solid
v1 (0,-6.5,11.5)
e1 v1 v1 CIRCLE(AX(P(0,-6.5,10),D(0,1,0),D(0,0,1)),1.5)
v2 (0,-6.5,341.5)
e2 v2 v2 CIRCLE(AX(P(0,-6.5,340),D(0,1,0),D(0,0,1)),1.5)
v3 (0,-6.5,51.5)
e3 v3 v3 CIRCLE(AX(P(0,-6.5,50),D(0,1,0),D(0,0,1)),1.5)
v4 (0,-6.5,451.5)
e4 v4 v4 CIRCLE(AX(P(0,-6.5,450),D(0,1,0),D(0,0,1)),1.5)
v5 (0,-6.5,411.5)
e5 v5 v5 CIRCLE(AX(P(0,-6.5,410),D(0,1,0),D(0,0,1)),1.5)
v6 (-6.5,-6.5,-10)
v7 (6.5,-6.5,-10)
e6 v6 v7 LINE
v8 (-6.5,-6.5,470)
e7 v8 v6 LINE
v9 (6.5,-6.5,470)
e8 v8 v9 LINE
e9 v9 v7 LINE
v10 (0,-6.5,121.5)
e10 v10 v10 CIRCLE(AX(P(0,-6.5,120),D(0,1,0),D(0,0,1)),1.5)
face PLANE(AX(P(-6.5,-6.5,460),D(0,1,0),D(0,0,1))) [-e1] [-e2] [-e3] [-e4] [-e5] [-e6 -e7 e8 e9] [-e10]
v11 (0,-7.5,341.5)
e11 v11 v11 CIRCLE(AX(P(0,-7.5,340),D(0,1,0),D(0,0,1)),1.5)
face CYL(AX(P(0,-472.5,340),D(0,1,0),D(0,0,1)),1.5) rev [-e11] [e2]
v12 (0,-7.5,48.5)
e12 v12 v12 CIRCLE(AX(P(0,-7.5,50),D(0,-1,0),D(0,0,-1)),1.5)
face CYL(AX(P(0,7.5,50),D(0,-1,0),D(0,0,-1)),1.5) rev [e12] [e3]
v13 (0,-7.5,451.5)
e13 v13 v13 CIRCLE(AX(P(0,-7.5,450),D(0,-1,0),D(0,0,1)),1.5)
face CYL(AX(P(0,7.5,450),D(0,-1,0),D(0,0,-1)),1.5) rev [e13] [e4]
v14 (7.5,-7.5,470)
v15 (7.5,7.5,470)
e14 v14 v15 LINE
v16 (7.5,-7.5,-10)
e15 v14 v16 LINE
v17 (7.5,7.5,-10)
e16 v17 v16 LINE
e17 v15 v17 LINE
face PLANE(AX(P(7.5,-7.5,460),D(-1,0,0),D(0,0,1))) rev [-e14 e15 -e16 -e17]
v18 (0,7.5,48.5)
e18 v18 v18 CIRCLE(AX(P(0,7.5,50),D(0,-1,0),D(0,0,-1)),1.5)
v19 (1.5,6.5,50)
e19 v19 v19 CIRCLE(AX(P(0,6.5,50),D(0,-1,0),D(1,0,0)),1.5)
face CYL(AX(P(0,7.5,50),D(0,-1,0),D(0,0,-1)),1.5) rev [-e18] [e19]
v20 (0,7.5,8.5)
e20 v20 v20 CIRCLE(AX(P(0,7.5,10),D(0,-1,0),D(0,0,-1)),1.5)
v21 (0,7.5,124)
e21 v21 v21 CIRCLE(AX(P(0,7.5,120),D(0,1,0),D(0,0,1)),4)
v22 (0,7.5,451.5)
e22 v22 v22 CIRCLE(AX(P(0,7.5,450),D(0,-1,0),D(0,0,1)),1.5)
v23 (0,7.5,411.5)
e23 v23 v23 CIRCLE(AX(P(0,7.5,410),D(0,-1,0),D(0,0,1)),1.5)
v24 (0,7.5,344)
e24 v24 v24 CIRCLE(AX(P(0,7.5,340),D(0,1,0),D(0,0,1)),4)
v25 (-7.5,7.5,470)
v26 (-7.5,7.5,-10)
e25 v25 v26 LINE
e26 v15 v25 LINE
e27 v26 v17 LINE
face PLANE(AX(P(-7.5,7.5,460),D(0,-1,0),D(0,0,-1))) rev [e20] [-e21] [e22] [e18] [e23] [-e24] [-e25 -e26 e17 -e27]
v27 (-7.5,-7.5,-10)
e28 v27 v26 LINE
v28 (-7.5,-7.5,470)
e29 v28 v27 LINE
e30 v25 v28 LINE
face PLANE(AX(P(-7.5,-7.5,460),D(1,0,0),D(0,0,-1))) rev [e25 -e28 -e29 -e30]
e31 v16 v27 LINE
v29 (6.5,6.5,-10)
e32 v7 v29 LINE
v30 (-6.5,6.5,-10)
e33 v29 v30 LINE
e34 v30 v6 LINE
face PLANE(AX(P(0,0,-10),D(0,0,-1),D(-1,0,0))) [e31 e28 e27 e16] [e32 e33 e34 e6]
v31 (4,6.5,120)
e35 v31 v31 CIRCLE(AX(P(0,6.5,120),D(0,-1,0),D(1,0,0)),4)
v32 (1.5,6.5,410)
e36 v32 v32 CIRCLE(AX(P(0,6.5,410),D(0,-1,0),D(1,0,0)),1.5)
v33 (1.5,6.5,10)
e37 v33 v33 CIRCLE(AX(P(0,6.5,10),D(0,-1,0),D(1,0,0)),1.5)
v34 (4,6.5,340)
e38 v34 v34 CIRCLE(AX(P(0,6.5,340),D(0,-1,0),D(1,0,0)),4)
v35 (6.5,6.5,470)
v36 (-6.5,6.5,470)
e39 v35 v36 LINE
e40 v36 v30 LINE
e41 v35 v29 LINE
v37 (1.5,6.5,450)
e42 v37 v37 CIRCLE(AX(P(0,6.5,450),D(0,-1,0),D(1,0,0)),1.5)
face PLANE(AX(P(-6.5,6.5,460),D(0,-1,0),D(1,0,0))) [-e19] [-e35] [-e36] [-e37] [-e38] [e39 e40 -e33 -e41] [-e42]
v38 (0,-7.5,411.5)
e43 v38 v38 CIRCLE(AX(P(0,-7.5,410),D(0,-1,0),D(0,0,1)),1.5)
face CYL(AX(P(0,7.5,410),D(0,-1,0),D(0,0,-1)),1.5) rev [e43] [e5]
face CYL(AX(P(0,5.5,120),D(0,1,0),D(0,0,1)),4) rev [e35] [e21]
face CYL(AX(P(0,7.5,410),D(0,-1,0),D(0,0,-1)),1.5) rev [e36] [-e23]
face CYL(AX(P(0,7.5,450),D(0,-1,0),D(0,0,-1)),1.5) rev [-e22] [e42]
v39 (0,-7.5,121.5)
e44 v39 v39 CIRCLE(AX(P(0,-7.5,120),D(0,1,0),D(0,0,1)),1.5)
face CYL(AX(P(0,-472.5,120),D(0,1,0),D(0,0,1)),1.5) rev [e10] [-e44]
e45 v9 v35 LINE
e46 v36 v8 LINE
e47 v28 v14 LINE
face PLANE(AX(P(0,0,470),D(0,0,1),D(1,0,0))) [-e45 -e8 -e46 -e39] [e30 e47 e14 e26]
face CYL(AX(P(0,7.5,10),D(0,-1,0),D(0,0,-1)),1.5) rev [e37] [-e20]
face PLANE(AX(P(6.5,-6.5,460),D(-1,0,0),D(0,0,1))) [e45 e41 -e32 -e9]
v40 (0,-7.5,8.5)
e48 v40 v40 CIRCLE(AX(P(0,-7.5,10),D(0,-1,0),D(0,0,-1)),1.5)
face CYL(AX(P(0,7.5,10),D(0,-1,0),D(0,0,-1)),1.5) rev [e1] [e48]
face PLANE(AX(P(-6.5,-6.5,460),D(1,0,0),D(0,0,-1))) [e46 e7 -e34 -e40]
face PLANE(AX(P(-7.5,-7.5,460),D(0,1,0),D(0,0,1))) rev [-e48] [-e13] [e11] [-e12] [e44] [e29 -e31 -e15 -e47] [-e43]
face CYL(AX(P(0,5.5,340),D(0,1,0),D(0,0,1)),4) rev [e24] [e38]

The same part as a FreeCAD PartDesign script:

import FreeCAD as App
import Part
import Sketcher
from FreeCAD import Vector
Q = App.Units.Quantity

doc = App.newDocument("Part")
body = doc.addObject("PartDesign::Body", "Body")

# Sketch on XY plane
sketch1 = body.newObject("Sketcher::SketchObject", "Sketch")
sketch1.AttachmentSupport = (doc.getObject("XY_Plane"), [""])
sketch1.MapMode = "FlatFace"
sketch1.addGeometry(Part.LineSegment(Vector(-8, 8, 0), Vector(-8, -8, 0)), False)
sketch1.addGeometry(Part.LineSegment(Vector(-8, -8, 0), Vector(8, -8, 0)), False)
sketch1.addGeometry(Part.LineSegment(Vector(8, -8, 0), Vector(8, 8, 0)), False)
sketch1.addGeometry(Part.LineSegment(Vector(8, 8, 0), Vector(-8, 8, 0)), False)
sketch1.addGeometry(Part.LineSegment(Vector(6, -6, 0), Vector(-6, -6, 0)), False)
sketch1.addGeometry(Part.LineSegment(Vector(-6, -6, 0), Vector(-6, 6, 0)), False)
sketch1.addGeometry(Part.LineSegment(Vector(-6, 6, 0), Vector(6, 6, 0)), False)
sketch1.addGeometry(Part.LineSegment(Vector(6, 6, 0), Vector(6, -6, 0)), False)
sketch1.addConstraint(Sketcher.Constraint("Coincident", 0, 2, 1, 1))
sketch1.addConstraint(Sketcher.Constraint("Coincident", 1, 2, 2, 1))
sketch1.addConstraint(Sketcher.Constraint("Coincident", 2, 2, 3, 1))
sketch1.addConstraint(Sketcher.Constraint("Coincident", 3, 2, 0, 1))
sketch1.addConstraint(Sketcher.Constraint("Coincident", 4, 2, 5, 1))
sketch1.addConstraint(Sketcher.Constraint("Coincident", 5, 2, 6, 1))
sketch1.addConstraint(Sketcher.Constraint("Coincident", 6, 2, 7, 1))
sketch1.addConstraint(Sketcher.Constraint("Coincident", 7, 2, 4, 1))
sketch1.addConstraint(Sketcher.Constraint("Vertical", 0))
sketch1.addConstraint(Sketcher.Constraint("Horizontal", 1))
sketch1.addConstraint(Sketcher.Constraint("Vertical", 2))
sketch1.addConstraint(Sketcher.Constraint("Horizontal", 3))
sketch1.addConstraint(Sketcher.Constraint("Horizontal", 4))
sketch1.addConstraint(Sketcher.Constraint("Vertical", 5))
sketch1.addConstraint(Sketcher.Constraint("Horizontal", 6))
sketch1.addConstraint(Sketcher.Constraint("Vertical", 7))
sketch1.addConstraint(Sketcher.Constraint("Symmetric", 0, 2, 2, 2, -1, 1))
sketch1.addConstraint(Sketcher.Constraint("Symmetric", 4, 2, 6, 2, -1, 1))
sketch1.addConstraint(Sketcher.Constraint("Equal", 3, 0))
sketch1.addConstraint(Sketcher.Constraint("Equal", 6, 5))
sketch1.addConstraint(Sketcher.Constraint("DistanceX", 1, 1, 1, 2, Q("15 mm")))
sketch1.addConstraint(Sketcher.Constraint("DistanceX", 4, 2, 4, 1, Q("13 mm")))
pad1 = body.newObject("PartDesign::Pad", "Pad")
pad1.Profile = sketch1
pad1.Length = 460

# Sketch on XZ plane
sketch2 = body.newObject("Sketcher::SketchObject", "Sketch001")
sketch2.AttachmentSupport = (doc.getObject("XZ_Plane"), [""])
sketch2.MapMode = "FlatFace"
sketch2.AttachmentOffset = App.Placement(Vector(0, 0, -7.5), App.Rotation())
sketch2.addGeometry(Part.Circle(Vector(0, 120, 0), Vector(0, 0, 1), 1.5), False)
sketch2.addGeometry(Part.Circle(Vector(0, 340, 0), Vector(0, 0, 1), 1.5), False)
sketch2.addConstraint(Sketcher.Constraint("Equal", 0, 1))
sketch2.addConstraint(Sketcher.Constraint("PointOnObject", 0, 3, -2))
sketch2.addConstraint(Sketcher.Constraint("PointOnObject", 1, 3, -2))
sketch2.addConstraint(Sketcher.Constraint("Diameter", 0, Q("3 mm")))
sketch2.addConstraint(Sketcher.Constraint("DistanceY", -1, 1, 0, 3, Q("120 mm")))
sketch2.addConstraint(Sketcher.Constraint("DistanceY", -1, 1, 1, 3, Q("340 mm")))
pocket1 = body.newObject("PartDesign::Pocket", "Pocket")
pocket1.Profile = sketch2
pocket1.Length = 480
pocket1.Reversed = True

# Sketch on XZ plane
sketch3 = body.newObject("Sketcher::SketchObject", "Sketch002")
sketch3.AttachmentSupport = (doc.getObject("XZ_Plane"), [""])
sketch3.MapMode = "FlatFace"
sketch3.AttachmentOffset = App.Placement(Vector(0, 0, -7.5), App.Rotation())
sketch3.addGeometry(Part.Circle(Vector(0, 120, 0), Vector(0, 0, 1), 4), False)
sketch3.addGeometry(Part.Circle(Vector(0, 340, 0), Vector(0, 0, 1), 4), False)
sketch3.addConstraint(Sketcher.Constraint("Equal", 0, 1))
sketch3.addConstraint(Sketcher.Constraint("PointOnObject", 0, 3, -2))
sketch3.addConstraint(Sketcher.Constraint("PointOnObject", 1, 3, -2))
sketch3.addConstraint(Sketcher.Constraint("Diameter", 0, Q("8 mm")))
sketch3.addConstraint(Sketcher.Constraint("DistanceY", -1, 1, 0, 3, Q("120 mm")))
sketch3.addConstraint(Sketcher.Constraint("DistanceY", -1, 1, 1, 3, Q("340 mm")))
pocket2 = body.newObject("PartDesign::Pocket", "Pocket001")
pocket2.Profile = sketch3
pocket2.Length = 2
pocket2.Reversed = True

# Sketch on XY plane
sketch4 = body.newObject("Sketcher::SketchObject", "Sketch003")
sketch4.AttachmentSupport = (doc.getObject("XY_Plane"), [""])
sketch4.MapMode = "FlatFace"
sketch4.addGeometry(Part.LineSegment(Vector(8, 8, 0), Vector(8, -8, 0)), False)
sketch4.addGeometry(Part.LineSegment(Vector(8, -8, 0), Vector(-8, -8, 0)), False)
sketch4.addGeometry(Part.LineSegment(Vector(-8, -8, 0), Vector(-8, 8, 0)), False)
sketch4.addGeometry(Part.LineSegment(Vector(-8, 8, 0), Vector(8, 8, 0)), False)
sketch4.addConstraint(Sketcher.Constraint("Coincident", 0, 2, 1, 1))
sketch4.addConstraint(Sketcher.Constraint("Coincident", 1, 2, 2, 1))
sketch4.addConstraint(Sketcher.Constraint("Coincident", 2, 2, 3, 1))
sketch4.addConstraint(Sketcher.Constraint("Coincident", 3, 2, 0, 1))
sketch4.addConstraint(Sketcher.Constraint("Vertical", 0))
sketch4.addConstraint(Sketcher.Constraint("Horizontal", 1))
sketch4.addConstraint(Sketcher.Constraint("Vertical", 2))
sketch4.addConstraint(Sketcher.Constraint("Horizontal", 3))
sketch4.addConstraint(Sketcher.Constraint("Symmetric", 0, 2, 2, 2, -1, 1))
sketch4.addConstraint(Sketcher.Constraint("Equal", 3, 0))
sketch4.addConstraint(Sketcher.Constraint("DistanceX", 1, 2, 1, 1, Q("15 mm")))
pad2 = body.newObject("PartDesign::Pad", "Pad001")
pad2.Profile = sketch4
pad2.Length = 10
pad2.Reversed = True

# Sketch on XY plane
sketch5 = body.newObject("Sketcher::SketchObject", "Sketch004")
sketch5.AttachmentSupport = (doc.getObject("XY_Plane"), [""])
sketch5.MapMode = "FlatFace"
sketch5.AttachmentOffset = App.Placement(Vector(0, 0, 460), App.Rotation())
sketch5.addGeometry(Part.LineSegment(Vector(-8, 8, 0), Vector(-8, -8, 0)), False)
sketch5.addGeometry(Part.LineSegment(Vector(-8, -8, 0), Vector(8, -8, 0)), False)
sketch5.addGeometry(Part.LineSegment(Vector(8, -8, 0), Vector(8, 8, 0)), False)
sketch5.addGeometry(Part.LineSegment(Vector(8, 8, 0), Vector(-8, 8, 0)), False)
sketch5.addConstraint(Sketcher.Constraint("Coincident", 0, 2, 1, 1))
sketch5.addConstraint(Sketcher.Constraint("Coincident", 1, 2, 2, 1))
sketch5.addConstraint(Sketcher.Constraint("Coincident", 2, 2, 3, 1))
sketch5.addConstraint(Sketcher.Constraint("Coincident", 3, 2, 0, 1))
sketch5.addConstraint(Sketcher.Constraint("Vertical", 0))
sketch5.addConstraint(Sketcher.Constraint("Horizontal", 1))
sketch5.addConstraint(Sketcher.Constraint("Vertical", 2))
sketch5.addConstraint(Sketcher.Constraint("Horizontal", 3))
sketch5.addConstraint(Sketcher.Constraint("Symmetric", 0, 2, 2, 2, -1, 1))
sketch5.addConstraint(Sketcher.Constraint("Equal", 3, 0))
sketch5.addConstraint(Sketcher.Constraint("DistanceX", 1, 1, 1, 2, Q("15 mm")))
pad3 = body.newObject("PartDesign::Pad", "Pad002")
pad3.Profile = sketch5
pad3.Length = 10

# Sketch on XY plane
sketch6 = body.newObject("Sketcher::SketchObject", "Sketch005")
sketch6.AttachmentSupport = (doc.getObject("XY_Plane"), [""])
sketch6.MapMode = "FlatFace"
sketch6.AttachmentOffset = App.Placement(Vector(0, 0, 470), App.Rotation())
sketch6.addGeometry(Part.LineSegment(Vector(-6, 6, 0), Vector(-6, -6, 0)), False)
sketch6.addGeometry(Part.LineSegment(Vector(-6, -6, 0), Vector(6, -6, 0)), False)
sketch6.addGeometry(Part.LineSegment(Vector(6, -6, 0), Vector(6, 6, 0)), False)
sketch6.addGeometry(Part.LineSegment(Vector(6, 6, 0), Vector(-6, 6, 0)), False)
sketch6.addConstraint(Sketcher.Constraint("Coincident", 0, 2, 1, 1))
sketch6.addConstraint(Sketcher.Constraint("Coincident", 1, 2, 2, 1))
sketch6.addConstraint(Sketcher.Constraint("Coincident", 2, 2, 3, 1))
sketch6.addConstraint(Sketcher.Constraint("Coincident", 3, 2, 0, 1))
sketch6.addConstraint(Sketcher.Constraint("Vertical", 0))
sketch6.addConstraint(Sketcher.Constraint("Horizontal", 1))
sketch6.addConstraint(Sketcher.Constraint("Vertical", 2))
sketch6.addConstraint(Sketcher.Constraint("Horizontal", 3))
sketch6.addConstraint(Sketcher.Constraint("Symmetric", 0, 2, 2, 2, -1, 1))
sketch6.addConstraint(Sketcher.Constraint("Equal", 3, 0))
sketch6.addConstraint(Sketcher.Constraint("DistanceX", 1, 1, 1, 2, Q("13 mm")))
pocket3 = body.newObject("PartDesign::Pocket", "Pocket002")
pocket3.Profile = sketch6
pocket3.Type = "ThroughAll"

# Sketch on XZ plane
sketch7 = body.newObject("Sketcher::SketchObject", "Sketch006")
sketch7.AttachmentSupport = (doc.getObject("XZ_Plane"), [""])
sketch7.MapMode = "FlatFace"
sketch7.AttachmentOffset = App.Placement(Vector(0, 0, 7.5), App.Rotation())
sketch7.addGeometry(Part.Circle(Vector(0, 10, 0), Vector(0, 0, 1), 1.5), False)
sketch7.addGeometry(Part.Circle(Vector(0, 50, 0), Vector(0, 0, 1), 1.5), False)
sketch7.addGeometry(Part.Circle(Vector(0, 450, 0), Vector(0, 0, 1), 1.5), False)
sketch7.addGeometry(Part.Circle(Vector(0, 410, 0), Vector(0, 0, 1), 1.5), False)
sketch7.addConstraint(Sketcher.Constraint("Equal", 0, 1))
sketch7.addConstraint(Sketcher.Constraint("Equal", 1, 2))
sketch7.addConstraint(Sketcher.Constraint("Equal", 2, 3))
sketch7.addConstraint(Sketcher.Constraint("PointOnObject", 0, 3, -2))
sketch7.addConstraint(Sketcher.Constraint("PointOnObject", 1, 3, -2))
sketch7.addConstraint(Sketcher.Constraint("PointOnObject", 2, 3, -2))
sketch7.addConstraint(Sketcher.Constraint("PointOnObject", 3, 3, -2))
sketch7.addConstraint(Sketcher.Constraint("Diameter", 0, Q("3 mm")))
sketch7.addConstraint(Sketcher.Constraint("DistanceY", -1, 1, 0, 3, Q("10 mm")))
sketch7.addConstraint(Sketcher.Constraint("DistanceY", -1, 1, 1, 3, Q("50 mm")))
sketch7.addConstraint(Sketcher.Constraint("DistanceY", -1, 1, 2, 3, Q("450 mm")))
sketch7.addConstraint(Sketcher.Constraint("DistanceY", -1, 1, 3, 3, Q("410 mm")))
pocket4 = body.newObject("PartDesign::Pocket", "Pocket003")
pocket4.Profile = sketch7
pocket4.Type = "ThroughAll"

doc.recompute()
